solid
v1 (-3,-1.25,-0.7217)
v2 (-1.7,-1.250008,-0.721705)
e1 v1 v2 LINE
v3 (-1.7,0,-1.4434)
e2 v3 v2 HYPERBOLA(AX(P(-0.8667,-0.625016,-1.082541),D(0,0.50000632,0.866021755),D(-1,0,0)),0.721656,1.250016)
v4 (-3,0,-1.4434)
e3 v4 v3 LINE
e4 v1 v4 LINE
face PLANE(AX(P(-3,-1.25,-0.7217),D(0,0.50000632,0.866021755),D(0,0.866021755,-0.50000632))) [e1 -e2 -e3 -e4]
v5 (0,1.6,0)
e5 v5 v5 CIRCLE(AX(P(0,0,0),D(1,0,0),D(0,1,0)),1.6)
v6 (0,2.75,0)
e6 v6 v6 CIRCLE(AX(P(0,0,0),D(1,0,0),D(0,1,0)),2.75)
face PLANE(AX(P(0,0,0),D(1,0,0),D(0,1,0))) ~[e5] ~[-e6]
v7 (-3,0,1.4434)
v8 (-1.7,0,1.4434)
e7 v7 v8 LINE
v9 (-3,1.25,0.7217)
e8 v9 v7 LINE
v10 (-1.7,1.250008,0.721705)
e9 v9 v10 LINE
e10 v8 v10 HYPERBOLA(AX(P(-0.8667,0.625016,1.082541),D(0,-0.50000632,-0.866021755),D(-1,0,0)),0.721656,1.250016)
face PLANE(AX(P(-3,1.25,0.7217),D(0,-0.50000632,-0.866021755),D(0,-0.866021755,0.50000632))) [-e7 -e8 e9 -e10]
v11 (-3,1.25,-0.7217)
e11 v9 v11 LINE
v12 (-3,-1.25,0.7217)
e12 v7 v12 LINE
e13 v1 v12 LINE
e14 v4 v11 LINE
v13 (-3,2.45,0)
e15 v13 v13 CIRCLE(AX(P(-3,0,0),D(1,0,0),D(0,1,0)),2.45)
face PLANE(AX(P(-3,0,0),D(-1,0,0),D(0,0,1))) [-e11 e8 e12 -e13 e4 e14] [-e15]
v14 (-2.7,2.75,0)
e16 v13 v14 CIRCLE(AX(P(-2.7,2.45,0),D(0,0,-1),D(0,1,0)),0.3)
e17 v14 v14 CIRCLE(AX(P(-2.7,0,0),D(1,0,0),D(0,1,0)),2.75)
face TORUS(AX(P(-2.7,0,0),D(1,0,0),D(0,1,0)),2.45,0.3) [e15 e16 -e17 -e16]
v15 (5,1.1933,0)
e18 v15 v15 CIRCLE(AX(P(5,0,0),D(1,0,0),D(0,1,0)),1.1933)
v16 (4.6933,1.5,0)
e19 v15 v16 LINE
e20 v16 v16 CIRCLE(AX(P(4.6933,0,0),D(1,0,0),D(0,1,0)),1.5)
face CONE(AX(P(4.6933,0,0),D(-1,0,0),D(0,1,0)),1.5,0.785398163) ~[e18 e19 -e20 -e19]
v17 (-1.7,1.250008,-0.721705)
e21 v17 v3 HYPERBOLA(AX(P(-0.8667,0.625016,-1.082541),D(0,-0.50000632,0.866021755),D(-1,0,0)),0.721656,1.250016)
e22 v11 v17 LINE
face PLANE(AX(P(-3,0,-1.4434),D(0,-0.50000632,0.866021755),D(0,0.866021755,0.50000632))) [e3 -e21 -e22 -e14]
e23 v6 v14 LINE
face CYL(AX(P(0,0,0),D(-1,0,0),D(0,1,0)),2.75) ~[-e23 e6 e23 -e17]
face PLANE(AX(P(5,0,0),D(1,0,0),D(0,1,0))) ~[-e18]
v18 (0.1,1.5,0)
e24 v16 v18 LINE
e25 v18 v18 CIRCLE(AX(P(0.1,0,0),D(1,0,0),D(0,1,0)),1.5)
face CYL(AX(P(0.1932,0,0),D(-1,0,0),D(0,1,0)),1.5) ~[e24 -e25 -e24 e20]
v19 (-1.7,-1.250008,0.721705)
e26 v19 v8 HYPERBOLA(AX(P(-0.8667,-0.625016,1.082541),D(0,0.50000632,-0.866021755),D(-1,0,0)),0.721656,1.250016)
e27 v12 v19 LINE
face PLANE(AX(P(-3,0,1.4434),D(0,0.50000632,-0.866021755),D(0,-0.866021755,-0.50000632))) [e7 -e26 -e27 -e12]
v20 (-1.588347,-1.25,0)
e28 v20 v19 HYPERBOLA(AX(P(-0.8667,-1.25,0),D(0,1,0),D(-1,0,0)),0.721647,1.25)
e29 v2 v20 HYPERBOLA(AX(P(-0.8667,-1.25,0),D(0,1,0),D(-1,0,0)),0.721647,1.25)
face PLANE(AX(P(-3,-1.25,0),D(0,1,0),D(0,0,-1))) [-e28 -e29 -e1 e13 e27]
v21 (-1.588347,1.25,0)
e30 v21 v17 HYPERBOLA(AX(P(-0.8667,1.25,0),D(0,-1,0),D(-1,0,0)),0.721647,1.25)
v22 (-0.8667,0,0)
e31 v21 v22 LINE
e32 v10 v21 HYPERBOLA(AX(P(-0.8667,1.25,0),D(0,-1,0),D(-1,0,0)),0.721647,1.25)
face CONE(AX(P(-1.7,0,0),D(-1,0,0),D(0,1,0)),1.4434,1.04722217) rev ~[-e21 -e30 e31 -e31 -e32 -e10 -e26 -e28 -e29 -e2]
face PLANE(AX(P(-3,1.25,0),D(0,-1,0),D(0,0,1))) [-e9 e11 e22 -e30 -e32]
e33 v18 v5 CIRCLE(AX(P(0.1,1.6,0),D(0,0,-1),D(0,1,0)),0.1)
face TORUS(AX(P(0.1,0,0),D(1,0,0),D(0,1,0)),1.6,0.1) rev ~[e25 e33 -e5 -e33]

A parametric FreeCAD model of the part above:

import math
import FreeCAD as App
import Part
import Sketcher
Q = App.Units.Quantity


def edges_at(feature, points):
    """Names of the edges that pass closest to the given points."""
    edges = feature.Shape.Edges
    near = lambda p: min(range(len(edges)), key=lambda i: edges[i].distToShape(Part.Vertex(*p))[0])
    return sorted({f"Edge{near(p) + 1}" for p in points})


def add_polygon(sketch, points):
    """Adds a closed chain of lines whose ends are joined by coincident constraints."""
    first, n = sketch.GeometryCount, len(points)
    for a, b in zip(points, points[1:] + points[:1]):
        sketch.addGeometry(Part.LineSegment(App.Vector(*a, 0), App.Vector(*b, 0)), False)
    for i in range(n):
        sketch.addConstraint(Sketcher.Constraint("Coincident", first + i, 2, first + (i + 1) % n, 1))

doc = App.newDocument("Part")
body = doc.addObject("PartDesign::Body", "Body")

# Sketch on XY plane
sketch1 = body.newObject("Sketcher::SketchObject", "Sketch")
sketch1.AttachmentSupport = (doc.getObject("XY_Plane"), [""])
sketch1.MapMode = "FlatFace"
add_polygon(sketch1, [(-1.7, 1.4), (-0.9, 0), (5, 0), (5, 1.5), (0, 1.5), (0, 2.8), (-3, 2.8), (-3, 1.4)])  # lines 0-7
sketch1.addConstraint([
    Sketcher.Constraint("Horizontal", 1),
    Sketcher.Constraint("Vertical", 2),
    Sketcher.Constraint("Horizontal", 3),
    Sketcher.Constraint("Vertical", 4),
    Sketcher.Constraint("Horizontal", 5),
    Sketcher.Constraint("Vertical", 6),
    Sketcher.Constraint("Horizontal", 7),
    Sketcher.Constraint("PointOnObject", 0, 2, -1),
    Sketcher.Constraint("PointOnObject", 3, 2, -2),
    Sketcher.Constraint("DistanceX", 3, 2, 3, 1, Q("5 mm")),
    Sketcher.Constraint("DistanceX", 5, 2, 5, 1, Q("3 mm")),
    Sketcher.Constraint("DistanceX", 7, 1, 7, 2, Q("1.3 mm")),
    Sketcher.Constraint("DistanceY", 2, 1, 2, 2, Q("1.5 mm")),
    Sketcher.Constraint("DistanceY", 4, 1, 4, 2, Q("1.25 mm")),
    Sketcher.Constraint("DistanceX", 1, 1, 1, 2, Q("5.8667 mm")),
    Sketcher.Constraint("DistanceY", 6, 2, 6, 1, Q("1.3066 mm")),
])
revolution = body.newObject("PartDesign::Revolution", "Revolution")
revolution.Profile = sketch1
revolution.ReferenceAxis = (sketch1, ["H_Axis"])
revolution.Angle = 360

# Sketch on YZ plane
sketch2 = body.newObject("Sketcher::SketchObject", "Sketch001")
sketch2.AttachmentSupport = (doc.getObject("YZ_Plane"), [""])
sketch2.MapMode = "FlatFace"
sketch2.AttachmentOffset = App.Placement(App.Vector(0, 0, -3), App.Rotation())
sketch2.addGeometry([
    Part.LineSegment(App.Vector(1.2, 0.7, 0), App.Vector(0, 1.4, 0)),  # 0
    Part.ArcOfCircle(Part.Circle(App.Vector(0, 0, 0), App.Vector(0, 0, 1), 1.4), math.radians(30), math.radians(90)),  # 1
    Part.ArcOfCircle(Part.Circle(App.Vector(0, 0, 0), App.Vector(0, 0, 1), 1.4), math.radians(90), math.radians(150)),  # 2
    Part.LineSegment(App.Vector(0, 1.4, 0), App.Vector(-1.2, 0.7, 0)),  # 3
    Part.ArcOfCircle(Part.Circle(App.Vector(0, 0, 0), App.Vector(0, 0, 1), 1.4), math.radians(-30), math.radians(30)),  # 4
    Part.LineSegment(App.Vector(1.2, 0.7, 0), App.Vector(1.2, -0.7, 0)),  # 5
    Part.LineSegment(App.Vector(-1.2, 0.7, 0), App.Vector(-1.2, -0.7, 0)),  # 6
    Part.ArcOfCircle(Part.Circle(App.Vector(0, 0, 0), App.Vector(0, 0, 1), 1.4), math.radians(150), math.radians(210)),  # 7
    Part.LineSegment(App.Vector(-1.2, -0.7, 0), App.Vector(0, -1.4, 0)),  # 8
    Part.ArcOfCircle(Part.Circle(App.Vector(0, 0, 0), App.Vector(0, 0, 1), 1.4), math.radians(-150), math.radians(-90)),  # 9
    Part.ArcOfCircle(Part.Circle(App.Vector(0, 0, 0), App.Vector(0, 0, 1), 1.4), math.radians(-90), math.radians(-30)),  # 10
    Part.LineSegment(App.Vector(0, -1.4, 0), App.Vector(1.2, -0.7, 0)),  # 11
], False)
sketch2.addConstraint([
    Sketcher.Constraint("Coincident", 0, 1, 1, 1),
    Sketcher.Constraint("Coincident", 1, 2, 0, 2),
    Sketcher.Constraint("Coincident", 2, 1, 3, 1),
    Sketcher.Constraint("Coincident", 3, 2, 2, 2),
    Sketcher.Constraint("Coincident", 4, 1, 5, 2),
    Sketcher.Constraint("Coincident", 5, 1, 4, 2),
    Sketcher.Constraint("Coincident", 6, 1, 7, 1),
    Sketcher.Constraint("Coincident", 7, 2, 6, 2),
    Sketcher.Constraint("Coincident", 8, 1, 9, 1),
    Sketcher.Constraint("Coincident", 9, 2, 8, 2),
    Sketcher.Constraint("Coincident", 10, 1, 11, 1),
    Sketcher.Constraint("Coincident", 11, 2, 10, 2),
    Sketcher.Constraint("Vertical", 5),
    Sketcher.Constraint("Vertical", 6),
    Sketcher.Constraint("Coincident", 1, 3, -1, 1),
    Sketcher.Constraint("Coincident", 2, 3, -1, 1),
    Sketcher.Constraint("Coincident", 4, 3, -1, 1),
    Sketcher.Constraint("Coincident", 7, 3, -1, 1),
    Sketcher.Constraint("Coincident", 9, 3, -1, 1),
    Sketcher.Constraint("Coincident", 10, 3, -1, 1),
    Sketcher.Constraint("Coincident", 2, 1, 1, 2),
    Sketcher.Constraint("Coincident", 5, 1, 0, 1),
    Sketcher.Constraint("Coincident", 6, 1, 3, 2),
    Sketcher.Constraint("Coincident", 8, 1, 7, 2),
    Sketcher.Constraint("Coincident", 10, 1, 9, 2),
    Sketcher.Constraint("PointOnObject", 1, 2, -2),
    Sketcher.Constraint("PointOnObject", 9, 2, -2),
    Sketcher.Constraint("Parallel", 0, 8),
    Sketcher.Constraint("Parallel", 3, 11),
    Sketcher.Constraint("Angle", 0, Q("149.9996 deg")),
    Sketcher.Constraint("Radius", 1, Q("1.4434 mm")),
])
pad1 = body.newObject("PartDesign::Pad", "Pad")
pad1.Profile = sketch2
pad1.Type = "UpToFirst"
doc.recompute()

fillet = body.newObject("PartDesign::Fillet", "Fillet")
fillet.Base = (pad1, edges_at(pad1, [(-3, -2.75, 0)]))
fillet.Radius = 0.3
doc.recompute()

chamfer = body.newObject("PartDesign::Chamfer", "Chamfer")
chamfer.Base = (fillet, edges_at(fillet, [(5, -1.5, 0)]))
chamfer.ChamferType = "Two distances"
chamfer.Size = 0.3067
chamfer.Size2 = 0.3067
doc.recompute()

fillet2 = body.newObject("PartDesign::Fillet", "Fillet001")
fillet2.Base = (chamfer, edges_at(chamfer, [(0, -1.5, 0)]))
fillet2.Radius = 0.1

doc.recompute()
